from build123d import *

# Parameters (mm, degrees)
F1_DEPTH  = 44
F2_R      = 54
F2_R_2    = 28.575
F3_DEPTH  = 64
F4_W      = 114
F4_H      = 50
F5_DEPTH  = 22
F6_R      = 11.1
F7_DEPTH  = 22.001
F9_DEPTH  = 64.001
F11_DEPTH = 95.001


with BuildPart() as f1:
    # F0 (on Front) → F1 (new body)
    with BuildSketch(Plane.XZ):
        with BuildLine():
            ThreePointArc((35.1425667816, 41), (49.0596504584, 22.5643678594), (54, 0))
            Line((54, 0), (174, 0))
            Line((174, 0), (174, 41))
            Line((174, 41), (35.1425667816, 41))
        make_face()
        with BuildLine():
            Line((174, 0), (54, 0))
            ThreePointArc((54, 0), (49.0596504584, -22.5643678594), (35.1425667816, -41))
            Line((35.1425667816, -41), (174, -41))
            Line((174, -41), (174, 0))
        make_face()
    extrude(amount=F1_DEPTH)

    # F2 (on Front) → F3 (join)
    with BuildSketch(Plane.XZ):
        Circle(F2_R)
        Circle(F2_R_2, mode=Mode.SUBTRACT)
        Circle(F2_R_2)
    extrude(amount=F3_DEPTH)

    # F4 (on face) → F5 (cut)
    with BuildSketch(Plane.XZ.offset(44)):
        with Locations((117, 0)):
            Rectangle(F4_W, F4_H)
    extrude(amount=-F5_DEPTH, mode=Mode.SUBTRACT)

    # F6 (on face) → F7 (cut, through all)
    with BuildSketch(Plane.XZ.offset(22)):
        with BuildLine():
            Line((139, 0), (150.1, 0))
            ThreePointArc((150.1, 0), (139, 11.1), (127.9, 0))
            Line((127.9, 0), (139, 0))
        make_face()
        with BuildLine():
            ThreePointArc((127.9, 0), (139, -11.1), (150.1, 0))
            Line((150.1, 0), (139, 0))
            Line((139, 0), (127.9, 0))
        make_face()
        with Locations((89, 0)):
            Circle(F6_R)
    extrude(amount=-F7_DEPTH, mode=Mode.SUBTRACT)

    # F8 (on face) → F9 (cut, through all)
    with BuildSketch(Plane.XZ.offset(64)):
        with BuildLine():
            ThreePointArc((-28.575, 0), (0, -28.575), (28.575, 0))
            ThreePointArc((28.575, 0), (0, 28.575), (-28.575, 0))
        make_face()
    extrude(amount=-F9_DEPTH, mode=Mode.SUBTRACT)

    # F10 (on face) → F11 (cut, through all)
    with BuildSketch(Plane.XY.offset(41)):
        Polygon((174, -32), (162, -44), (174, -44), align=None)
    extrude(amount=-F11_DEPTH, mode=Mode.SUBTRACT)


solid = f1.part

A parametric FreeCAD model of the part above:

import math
import FreeCAD as App
import Part
import Sketcher
Q = App.Units.Quantity


def add_polygon(sketch, points):
    """Adds a closed chain of lines whose ends are joined by coincident constraints."""
    first, n = sketch.GeometryCount, len(points)
    for a, b in zip(points, points[1:] + points[:1]):
        sketch.addGeometry(Part.LineSegment(App.Vector(*a, 0), App.Vector(*b, 0)), False)
    for i in range(n):
        sketch.addConstraint(Sketcher.Constraint("Coincident", first + i, 2, first + (i + 1) % n, 1))

doc = App.newDocument("Part")
params = doc.addObject("Spreadsheet::Sheet", "Params")
for row, (alias, value) in enumerate([
    ("sketch1_radius", "54 mm"),
    ("sketch1_height", "82 mm"),
    ("pad1_length", "44 mm"),
    ("sketch2_diameter", "108 mm"),
    ("pad2_length", "64 mm"),
    ("sketch3_width", "114 mm"),
    ("sketch3_height", "50 mm"),
    ("pocket1_length", "22 mm"),
    ("sketch4_diameter", "22.2 mm"),
    ("sketch5_diameter", "57.15 mm"),
    ("sketch6_width", "12 mm"),
], start=1):
    params.set(f"A{row}", alias)
    params.set(f"B{row}", "=" + value)
    params.setAlias(f"B{row}", alias)

body = doc.addObject("PartDesign::Body", "Body")

sketch1 = body.newObject("Sketcher::SketchObject", "Sketch")
sketch1.AttachmentSupport = (doc.getObject("XZ_Plane"), [""])
sketch1.MapMode = "FlatFace"
sketch1.addGeometry(Part.ArcOfCircle(Part.Circle(App.Vector(0, 0, 0), App.Vector(0, 0, 1), 54), math.radians(0), math.radians(49)), False)
sketch1.addGeometry(Part.ArcOfCircle(Part.Circle(App.Vector(0, 0, 0), App.Vector(0, 0, 1), 54), math.radians(-49), math.radians(0)), False)
sketch1.addGeometry(Part.LineSegment(App.Vector(35, -41, 0), App.Vector(174, -41, 0)), False)
sketch1.addGeometry(Part.LineSegment(App.Vector(174, -41, 0), App.Vector(174, 41, 0)), False)
sketch1.addGeometry(Part.LineSegment(App.Vector(174, 41, 0), App.Vector(35, 41, 0)), False)
sketch1.addConstraint(Sketcher.Constraint("Tangent", 0, 1, 1, 2))
sketch1.addConstraint(Sketcher.Constraint("Coincident", 1, 1, 2, 1))
sketch1.addConstraint(Sketcher.Constraint("Coincident", 2, 2, 3, 1))
sketch1.addConstraint(Sketcher.Constraint("Coincident", 3, 2, 4, 1))
sketch1.addConstraint(Sketcher.Constraint("Coincident", 4, 2, 0, 2))
sketch1.addConstraint(Sketcher.Constraint("Horizontal", 2))
sketch1.addConstraint(Sketcher.Constraint("Vertical", 3))
sketch1.addConstraint(Sketcher.Constraint("Horizontal", 4))
sketch1.addConstraint(Sketcher.Constraint("Coincident", 0, 3, -1, 1))
sketch1.addConstraint(Sketcher.Constraint("Equal", 0, 1))
sketch1.addConstraint(Sketcher.Constraint("PointOnObject", 0, 1, -1))
sketch1.addConstraint(Sketcher.Constraint("Vertical", 1, 1, 4, 2))
sketch1.addConstraint(Sketcher.Constraint("Radius", 0, Q("54 mm")))
sketch1.addConstraint(Sketcher.Constraint("DistanceY", 3, 1, 3, 2, Q("82 mm")))
sketch1.addConstraint(Sketcher.Constraint("DistanceX", -1, 1, 2, 2, Q("174 mm")))
sketch1.setExpression("Constraints[12]", "Params.sketch1_radius")
sketch1.setExpression("Constraints[13]", "Params.sketch1_height")
pad1 = body.newObject("PartDesign::Pad", "Pad")
pad1.Profile = sketch1
pad1.setExpression("Length", "Params.pad1_length")

sketch2 = body.newObject("Sketcher::SketchObject", "Sketch001")
sketch2.AttachmentSupport = (doc.getObject("XZ_Plane"), [""])
sketch2.MapMode = "FlatFace"
sketch2.addGeometry(Part.Circle(App.Vector(0, 0, 0), App.Vector(0, 0, 1), 54), False)
sketch2.addConstraint(Sketcher.Constraint("Coincident", 0, 3, -1, 1))
sketch2.addConstraint(Sketcher.Constraint("Diameter", 0, Q("108 mm")))
sketch2.setExpression("Constraints[1]", "Params.sketch2_diameter")
pad2 = body.newObject("PartDesign::Pad", "Pad001")
pad2.Profile = sketch2
pad2.setExpression("Length", "Params.pad2_length")

sketch3 = body.newObject("Sketcher::SketchObject", "Sketch002")
sketch3.AttachmentSupport = (doc.getObject("XZ_Plane"), [""])
sketch3.MapMode = "FlatFace"
sketch3.AttachmentOffset = App.Placement(App.Vector(0, 0, 44), App.Rotation())
add_polygon(sketch3, [(60, 25), (60, -25), (174, -25), (174, 25)])
sketch3.addConstraint(Sketcher.Constraint("Vertical", 0))
sketch3.addConstraint(Sketcher.Constraint("Horizontal", 1))
sketch3.addConstraint(Sketcher.Constraint("Vertical", 2))
sketch3.addConstraint(Sketcher.Constraint("Horizontal", 3))
sketch3.addConstraint(Sketcher.Constraint("DistanceX", 1, 1, 1, 2, Q("114 mm")))
sketch3.addConstraint(Sketcher.Constraint("DistanceY", 0, 2, 0, 1, Q("50 mm")))
sketch3.addConstraint(Sketcher.Constraint("DistanceX", -1, 1, 0, 2, Q("60 mm")))
sketch3.addConstraint(Sketcher.Constraint("DistanceY", 0, 2, -1, 1, Q("25 mm")))
sketch3.setExpression("Constraints[8]", "Params.sketch3_width")
sketch3.setExpression("Constraints[9]", "Params.sketch3_height")
pocket1 = body.newObject("PartDesign::Pocket", "Pocket")
pocket1.Profile = sketch3
pocket1.setExpression("Length", "Params.pocket1_length")

sketch4 = body.newObject("Sketcher::SketchObject", "Sketch003")
sketch4.AttachmentSupport = (doc.getObject("XZ_Plane"), [""])
sketch4.MapMode = "FlatFace"
sketch4.AttachmentOffset = App.Placement(App.Vector(0, 0, 22), App.Rotation())
sketch4.addGeometry(Part.Circle(App.Vector(139, 0, 0), App.Vector(0, 0, 1), 11), False)
sketch4.addGeometry(Part.Circle(App.Vector(89, 0, 0), App.Vector(0, 0, 1), 11), False)
sketch4.addConstraint(Sketcher.Constraint("Equal", 0, 1))
sketch4.addConstraint(Sketcher.Constraint("PointOnObject", 0, 3, -1))
sketch4.addConstraint(Sketcher.Constraint("PointOnObject", 1, 3, -1))
sketch4.addConstraint(Sketcher.Constraint("Diameter", 0, Q("22.2 mm")))
sketch4.addConstraint(Sketcher.Constraint("DistanceX", -1, 1, 0, 3, Q("139 mm")))
sketch4.addConstraint(Sketcher.Constraint("DistanceX", -1, 1, 1, 3, Q("89 mm")))
sketch4.setExpression("Constraints[3]", "Params.sketch4_diameter")
pocket2 = body.newObject("PartDesign::Pocket", "Pocket001")
pocket2.Profile = sketch4
pocket2.Type = "ThroughAll"

sketch5 = body.newObject("Sketcher::SketchObject", "Sketch004")
sketch5.AttachmentSupport = (doc.getObject("XZ_Plane"), [""])
sketch5.MapMode = "FlatFace"
sketch5.AttachmentOffset = App.Placement(App.Vector(0, 0, 64), App.Rotation())
sketch5.addGeometry(Part.Circle(App.Vector(0, 0, 0), App.Vector(0, 0, 1), 29), False)
sketch5.addConstraint(Sketcher.Constraint("Coincident", 0, 3, -1, 1))
sketch5.addConstraint(Sketcher.Constraint("Diameter", 0, Q("57.15 mm")))
sketch5.setExpression("Constraints[1]", "Params.sketch5_diameter")
pocket3 = body.newObject("PartDesign::Pocket", "Pocket002")
pocket3.Profile = sketch5
pocket3.Type = "ThroughAll"

sketch6 = body.newObject("Sketcher::SketchObject", "Sketch005")
sketch6.AttachmentSupport = (doc.getObject("XY_Plane"), [""])
sketch6.MapMode = "FlatFace"
sketch6.AttachmentOffset = App.Placement(App.Vector(0, 0, 41), App.Rotation())
add_polygon(sketch6, [(174, -32), (162, -44), (174, -44)])
sketch6.addConstraint(Sketcher.Constraint("Horizontal", 1))
sketch6.addConstraint(Sketcher.Constraint("Vertical", 2))
sketch6.addConstraint(Sketcher.Constraint("Equal", 1, 2))
sketch6.addConstraint(Sketcher.Constraint("DistanceX", 1, 1, 1, 2, Q("12 mm")))
sketch6.addConstraint(Sketcher.Constraint("DistanceX", -1, 1, 0, 2, Q("162 mm")))
sketch6.addConstraint(Sketcher.Constraint("DistanceY", 0, 2, -1, 1, Q("44 mm")))
sketch6.setExpression("Constraints[6]", "Params.sketch6_width")
pocket4 = body.newObject("PartDesign::Pocket", "Pocket003")
pocket4.Profile = sketch6
pocket4.Type = "ThroughAll"

doc.recompute()
